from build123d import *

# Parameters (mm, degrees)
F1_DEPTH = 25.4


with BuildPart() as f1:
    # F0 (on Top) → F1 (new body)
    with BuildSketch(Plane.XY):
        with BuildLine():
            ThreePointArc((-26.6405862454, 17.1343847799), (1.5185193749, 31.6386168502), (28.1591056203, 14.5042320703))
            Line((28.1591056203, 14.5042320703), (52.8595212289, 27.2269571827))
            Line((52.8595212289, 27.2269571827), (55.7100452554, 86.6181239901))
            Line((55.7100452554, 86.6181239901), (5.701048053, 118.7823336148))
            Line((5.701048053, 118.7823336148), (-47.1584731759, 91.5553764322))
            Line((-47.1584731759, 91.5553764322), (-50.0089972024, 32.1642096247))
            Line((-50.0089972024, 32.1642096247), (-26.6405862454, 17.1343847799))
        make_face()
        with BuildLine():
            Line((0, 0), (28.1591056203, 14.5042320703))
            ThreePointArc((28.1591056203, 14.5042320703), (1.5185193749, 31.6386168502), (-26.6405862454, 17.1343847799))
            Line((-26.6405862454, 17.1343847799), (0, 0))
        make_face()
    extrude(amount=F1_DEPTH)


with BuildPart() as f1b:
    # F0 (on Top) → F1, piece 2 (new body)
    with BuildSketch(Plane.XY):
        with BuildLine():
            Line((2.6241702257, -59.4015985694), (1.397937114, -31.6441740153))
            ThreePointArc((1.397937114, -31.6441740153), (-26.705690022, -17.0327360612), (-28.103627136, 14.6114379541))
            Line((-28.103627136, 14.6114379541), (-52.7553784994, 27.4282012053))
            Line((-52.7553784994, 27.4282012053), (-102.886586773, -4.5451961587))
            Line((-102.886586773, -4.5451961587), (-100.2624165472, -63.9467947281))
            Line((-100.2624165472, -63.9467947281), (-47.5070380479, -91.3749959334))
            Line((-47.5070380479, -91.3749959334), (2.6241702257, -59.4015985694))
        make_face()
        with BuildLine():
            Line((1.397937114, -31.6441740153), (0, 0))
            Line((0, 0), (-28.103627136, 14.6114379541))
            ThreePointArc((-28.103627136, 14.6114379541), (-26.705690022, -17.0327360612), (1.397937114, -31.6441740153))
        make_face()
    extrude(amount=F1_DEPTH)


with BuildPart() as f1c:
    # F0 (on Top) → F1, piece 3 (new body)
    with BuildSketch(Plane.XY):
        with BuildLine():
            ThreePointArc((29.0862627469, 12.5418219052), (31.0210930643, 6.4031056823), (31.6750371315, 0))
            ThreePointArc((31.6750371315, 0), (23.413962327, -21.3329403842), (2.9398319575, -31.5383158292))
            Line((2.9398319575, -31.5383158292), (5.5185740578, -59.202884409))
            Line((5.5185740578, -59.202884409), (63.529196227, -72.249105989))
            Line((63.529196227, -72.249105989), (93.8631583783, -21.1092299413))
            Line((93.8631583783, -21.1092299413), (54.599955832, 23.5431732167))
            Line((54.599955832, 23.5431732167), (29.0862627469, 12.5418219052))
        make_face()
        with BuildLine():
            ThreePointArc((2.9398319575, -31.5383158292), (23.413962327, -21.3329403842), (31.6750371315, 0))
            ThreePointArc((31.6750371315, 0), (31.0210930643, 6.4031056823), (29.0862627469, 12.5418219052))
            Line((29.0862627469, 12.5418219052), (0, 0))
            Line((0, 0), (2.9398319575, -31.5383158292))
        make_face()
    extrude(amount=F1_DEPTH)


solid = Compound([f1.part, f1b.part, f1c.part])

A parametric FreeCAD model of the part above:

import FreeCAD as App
import Part
import Sketcher
Q = App.Units.Quantity


def add_polygon(sketch, points):
    """Adds a closed chain of lines whose ends are joined by coincident constraints."""
    first, n = sketch.GeometryCount, len(points)
    for a, b in zip(points, points[1:] + points[:1]):
        sketch.addGeometry(Part.LineSegment(App.Vector(*a, 0), App.Vector(*b, 0)), False)
    for i in range(n):
        sketch.addConstraint(Sketcher.Constraint("Coincident", first + i, 2, first + (i + 1) % n, 1))

doc = App.newDocument("Part")
params = doc.addObject("Spreadsheet::Sheet", "Params")
for row, (alias, value) in enumerate([
    ("pad1_length", "1 in"),
    ("pad2_length", "1 in"),
    ("pad3_length", "1 in"),
], start=1):
    params.set(f"A{row}", alias)
    params.set(f"B{row}", "=" + value)
    params.setAlias(f"B{row}", alias)

body = doc.addObject("PartDesign::Body", "Body")

# Sketch on XY plane
sketch1 = body.newObject("Sketcher::SketchObject", "Sketch")
sketch1.AttachmentSupport = (doc.getObject("XY_Plane"), [""])
sketch1.MapMode = "FlatFace"
add_polygon(sketch1, [(28, 15), (53, 27), (56, 87), (6, 119), (-47, 92), (-50, 32), (-27, 17), (0, 0)])  # lines 0-7
sketch1.addConstraint([
    Sketcher.Constraint("Coincident", 6, 2, -1, 1),
    Sketcher.Constraint("Parallel", 0, 3),
    Sketcher.Constraint("Parallel", 1, 4),
    Sketcher.Constraint("Parallel", 2, 5),
    Sketcher.Constraint("Parallel", 5, 6),
    Sketcher.Constraint("Parallel", 3, 7),
    Sketcher.Constraint("Equal", 1, 2),
    Sketcher.Constraint("Equal", 2, 3),
    Sketcher.Constraint("Equal", 3, 4),
    Sketcher.Constraint("Equal", 0, 5),
    Sketcher.Constraint("DistanceX", -1, 1, 0, 2, 52.859521),
    Sketcher.Constraint("DistanceX", -1, 1, 2, 2, 5.701048),
    Sketcher.Constraint("DistanceY", -1, 1, 4, 2, 32.16421),
    Sketcher.Constraint("DistanceX", 3, 2, 1, 2, 102.868518),
    Sketcher.Constraint("DistanceX", 4, 2, 5, 2, 23.368411),
])
pad1 = body.newObject("PartDesign::Pad", "Pad")
pad1.Profile = sketch1
pad1.setExpression("Length", "Params.pad1_length")
body2 = doc.addObject("PartDesign::Body", "Body001")

# Sketch on XY plane
sketch2 = body2.newObject("Sketcher::SketchObject", "Sketch001")
sketch2.AttachmentSupport = (doc.getObject("XY_Plane001"), [""])
sketch2.MapMode = "FlatFace"
add_polygon(sketch2, [(2.62417, -59.401599), (1.397937, -31.644174), (0, 0), (-28.103627, 14.611438), (-52.755378, 27.428201), (-102.886587, -4.545196), (-100.262417, -63.946795), (-47.507038, -91.374996)])  # lines 0-7
sketch2.addConstraint([
    Sketcher.Constraint("Coincident", 1, 2, -1, 1),
    Sketcher.Constraint("DistanceY", -1, 1, 3, 2, 27.428201),
    Sketcher.Constraint("DistanceY", 7, 2, -1, 1, 59.401599),
    Sketcher.Constraint("DistanceY", 5, 2, 4, 2, 59.401599),
    Sketcher.Constraint("DistanceY", 6, 2, 5, 2, 27.428201),
    Sketcher.Constraint("DistanceX", 3, 2, -1, 1, 52.755378),
    Sketcher.Constraint("DistanceX", 6, 2, -1, 1, 47.507038),
    Sketcher.Constraint("DistanceX", -1, 1, 7, 2, 2.62417),
    Sketcher.Constraint("DistanceY", 0, 2, 2, 2, 46.255612),
    Sketcher.Constraint("DistanceX", 3, 2, 2, 2, 24.651751),
    Sketcher.Constraint("DistanceX", 4, 2, 3, 2, 50.131208),
    Sketcher.Constraint("DistanceX", 4, 2, 5, 2, 2.62417),
    Sketcher.Constraint("DistanceY", 5, 2, 0, 2, 32.302621),
    Sketcher.Constraint("Distance", 0, 27.784497),
    Sketcher.Constraint("Distance", 2, 31.675037),
])
pad2 = body2.newObject("PartDesign::Pad", "Pad001")
pad2.Profile = sketch2
pad2.setExpression("Length", "Params.pad2_length")
body3 = doc.addObject("PartDesign::Body", "Body002")

# Sketch on XY plane
sketch3 = body3.newObject("Sketcher::SketchObject", "Sketch002")
sketch3.AttachmentSupport = (doc.getObject("XY_Plane002"), [""])
sketch3.MapMode = "FlatFace"
add_polygon(sketch3, [(6, -59), (64, -72), (94, -21), (55, 24), (0, 0)])  # lines 0-4
sketch3.addConstraint([
    Sketcher.Constraint("Coincident", 3, 2, -1, 1),
    Sketcher.Constraint("Equal", 0, 1),
    Sketcher.Constraint("Equal", 1, 2),
    Sketcher.Constraint("Equal", 2, 3),
    Sketcher.Constraint("Equal", 3, 4),
    Sketcher.Constraint("DistanceX", -1, 1, 1, 2, Q("3.6953999 in")),
    Sketcher.Constraint("DistanceY", 1, 2, -1, 1, 21.10923),
    Sketcher.Constraint("DistanceX", 2, 2, 0, 2, 8.92924),
    Sketcher.Constraint("DistanceY", 0, 2, 2, 2, 95.792279),
])
pad3 = body3.newObject("PartDesign::Pad", "Pad002")
pad3.Profile = sketch3
pad3.setExpression("Length", "Params.pad3_length")

doc.recompute()
